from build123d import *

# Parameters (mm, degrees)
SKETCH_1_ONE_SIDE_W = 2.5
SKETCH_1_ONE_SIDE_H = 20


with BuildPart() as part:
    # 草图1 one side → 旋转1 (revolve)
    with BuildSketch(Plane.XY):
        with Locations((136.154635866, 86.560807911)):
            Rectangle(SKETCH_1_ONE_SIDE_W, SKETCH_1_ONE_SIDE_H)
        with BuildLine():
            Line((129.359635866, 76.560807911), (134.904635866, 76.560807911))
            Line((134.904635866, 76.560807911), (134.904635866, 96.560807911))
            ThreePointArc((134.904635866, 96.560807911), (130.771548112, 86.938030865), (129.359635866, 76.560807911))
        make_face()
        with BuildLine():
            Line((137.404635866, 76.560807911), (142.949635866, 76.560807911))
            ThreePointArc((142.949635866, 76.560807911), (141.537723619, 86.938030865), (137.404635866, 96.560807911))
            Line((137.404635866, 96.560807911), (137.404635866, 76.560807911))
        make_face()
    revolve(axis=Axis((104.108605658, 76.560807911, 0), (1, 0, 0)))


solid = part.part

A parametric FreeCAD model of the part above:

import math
import FreeCAD as App
import Part
import Sketcher

V = App.Vector
Q = App.Units.Quantity

doc = App.newDocument("Part")
params = doc.addObject("Spreadsheet::Sheet", "Params")
for row, (alias, value) in enumerate([
    ("sketch1_width", "2.5 mm"),
    ("sketch1_width2", "13.59 mm"),
    ("revolution_angle", "360 deg"),
], start=1):
    params.set(f"A{row}", alias)
    params.set(f"B{row}", "=" + value)
    params.setAlias(f"B{row}", alias)

body = doc.addObject("PartDesign::Body", "Body")

# Sketch on XY plane
sketch1 = body.newObject("Sketcher::SketchObject", "Sketch")
sketch1.AttachmentSupport = (doc.getObject("XY_Plane"), [""])
sketch1.MapMode = "FlatFace"
sketch1.addGeometry([
    Part.LineSegment(V(137.4, 96.6, 0), V(134.9, 96.6, 0)),
    Part.ArcOfCircle(Part.Circle(V(168.2, 76.6, 0), V(0, 0, 1), 38.8), math.radians(149), math.radians(180)),
    Part.LineSegment(V(129.4, 76.6, 0), V(142.9, 76.6, 0)),
    Part.ArcOfCircle(Part.Circle(V(104.1, 76.6, 0), V(0, 0, 1), 38.8), math.radians(0), math.radians(31)),
], False)
sketch1.addGeometry(Part.LineSegment(V(104.1, 76.6, 0), V(168.2, 76.6, 0)), True)  # axis
sketch1.addConstraint([
    Sketcher.Constraint("Coincident", 0, 2, 1, 1),
    Sketcher.Constraint("Coincident", 1, 2, 2, 1),
    Sketcher.Constraint("Coincident", 2, 2, 3, 1),
    Sketcher.Constraint("Coincident", 3, 2, 0, 1),
    Sketcher.Constraint("Horizontal", 0),
    Sketcher.Constraint("Horizontal", 2),
    Sketcher.Constraint("Horizontal", 4),
    Sketcher.Constraint("Coincident", 4, 1, 3, 3),
    Sketcher.Constraint("Coincident", 4, 2, 1, 3),
    Sketcher.Constraint("Equal", 1, 3),
    Sketcher.Constraint("Horizontal", 3, 3, 1, 2),
    Sketcher.Constraint("DistanceX", 0, 2, 0, 1, Q("2.5 mm")),
    Sketcher.Constraint("DistanceY", 3, 3, 0, 2, Q("20 mm")),
    Sketcher.Constraint("DistanceX", 2, 1, 2, 2, Q("13.59 mm")),
    Sketcher.Constraint("DistanceX", -1, 1, 1, 3, Q("168.200666 mm")),
    Sketcher.Constraint("DistanceY", -1, 1, 1, 3, Q("76.560808 mm")),
])
sketch1.setExpression("Constraints[11]", "Params.sketch1_width")
sketch1.setExpression("Constraints[13]", "Params.sketch1_width2")
revolution = body.newObject("PartDesign::Revolution", "Revolution")
revolution.Profile = sketch1
revolution.ReferenceAxis = (sketch1, ["Axis0"])
revolution.setExpression("Angle", "Params.revolution_angle")

doc.recompute()
